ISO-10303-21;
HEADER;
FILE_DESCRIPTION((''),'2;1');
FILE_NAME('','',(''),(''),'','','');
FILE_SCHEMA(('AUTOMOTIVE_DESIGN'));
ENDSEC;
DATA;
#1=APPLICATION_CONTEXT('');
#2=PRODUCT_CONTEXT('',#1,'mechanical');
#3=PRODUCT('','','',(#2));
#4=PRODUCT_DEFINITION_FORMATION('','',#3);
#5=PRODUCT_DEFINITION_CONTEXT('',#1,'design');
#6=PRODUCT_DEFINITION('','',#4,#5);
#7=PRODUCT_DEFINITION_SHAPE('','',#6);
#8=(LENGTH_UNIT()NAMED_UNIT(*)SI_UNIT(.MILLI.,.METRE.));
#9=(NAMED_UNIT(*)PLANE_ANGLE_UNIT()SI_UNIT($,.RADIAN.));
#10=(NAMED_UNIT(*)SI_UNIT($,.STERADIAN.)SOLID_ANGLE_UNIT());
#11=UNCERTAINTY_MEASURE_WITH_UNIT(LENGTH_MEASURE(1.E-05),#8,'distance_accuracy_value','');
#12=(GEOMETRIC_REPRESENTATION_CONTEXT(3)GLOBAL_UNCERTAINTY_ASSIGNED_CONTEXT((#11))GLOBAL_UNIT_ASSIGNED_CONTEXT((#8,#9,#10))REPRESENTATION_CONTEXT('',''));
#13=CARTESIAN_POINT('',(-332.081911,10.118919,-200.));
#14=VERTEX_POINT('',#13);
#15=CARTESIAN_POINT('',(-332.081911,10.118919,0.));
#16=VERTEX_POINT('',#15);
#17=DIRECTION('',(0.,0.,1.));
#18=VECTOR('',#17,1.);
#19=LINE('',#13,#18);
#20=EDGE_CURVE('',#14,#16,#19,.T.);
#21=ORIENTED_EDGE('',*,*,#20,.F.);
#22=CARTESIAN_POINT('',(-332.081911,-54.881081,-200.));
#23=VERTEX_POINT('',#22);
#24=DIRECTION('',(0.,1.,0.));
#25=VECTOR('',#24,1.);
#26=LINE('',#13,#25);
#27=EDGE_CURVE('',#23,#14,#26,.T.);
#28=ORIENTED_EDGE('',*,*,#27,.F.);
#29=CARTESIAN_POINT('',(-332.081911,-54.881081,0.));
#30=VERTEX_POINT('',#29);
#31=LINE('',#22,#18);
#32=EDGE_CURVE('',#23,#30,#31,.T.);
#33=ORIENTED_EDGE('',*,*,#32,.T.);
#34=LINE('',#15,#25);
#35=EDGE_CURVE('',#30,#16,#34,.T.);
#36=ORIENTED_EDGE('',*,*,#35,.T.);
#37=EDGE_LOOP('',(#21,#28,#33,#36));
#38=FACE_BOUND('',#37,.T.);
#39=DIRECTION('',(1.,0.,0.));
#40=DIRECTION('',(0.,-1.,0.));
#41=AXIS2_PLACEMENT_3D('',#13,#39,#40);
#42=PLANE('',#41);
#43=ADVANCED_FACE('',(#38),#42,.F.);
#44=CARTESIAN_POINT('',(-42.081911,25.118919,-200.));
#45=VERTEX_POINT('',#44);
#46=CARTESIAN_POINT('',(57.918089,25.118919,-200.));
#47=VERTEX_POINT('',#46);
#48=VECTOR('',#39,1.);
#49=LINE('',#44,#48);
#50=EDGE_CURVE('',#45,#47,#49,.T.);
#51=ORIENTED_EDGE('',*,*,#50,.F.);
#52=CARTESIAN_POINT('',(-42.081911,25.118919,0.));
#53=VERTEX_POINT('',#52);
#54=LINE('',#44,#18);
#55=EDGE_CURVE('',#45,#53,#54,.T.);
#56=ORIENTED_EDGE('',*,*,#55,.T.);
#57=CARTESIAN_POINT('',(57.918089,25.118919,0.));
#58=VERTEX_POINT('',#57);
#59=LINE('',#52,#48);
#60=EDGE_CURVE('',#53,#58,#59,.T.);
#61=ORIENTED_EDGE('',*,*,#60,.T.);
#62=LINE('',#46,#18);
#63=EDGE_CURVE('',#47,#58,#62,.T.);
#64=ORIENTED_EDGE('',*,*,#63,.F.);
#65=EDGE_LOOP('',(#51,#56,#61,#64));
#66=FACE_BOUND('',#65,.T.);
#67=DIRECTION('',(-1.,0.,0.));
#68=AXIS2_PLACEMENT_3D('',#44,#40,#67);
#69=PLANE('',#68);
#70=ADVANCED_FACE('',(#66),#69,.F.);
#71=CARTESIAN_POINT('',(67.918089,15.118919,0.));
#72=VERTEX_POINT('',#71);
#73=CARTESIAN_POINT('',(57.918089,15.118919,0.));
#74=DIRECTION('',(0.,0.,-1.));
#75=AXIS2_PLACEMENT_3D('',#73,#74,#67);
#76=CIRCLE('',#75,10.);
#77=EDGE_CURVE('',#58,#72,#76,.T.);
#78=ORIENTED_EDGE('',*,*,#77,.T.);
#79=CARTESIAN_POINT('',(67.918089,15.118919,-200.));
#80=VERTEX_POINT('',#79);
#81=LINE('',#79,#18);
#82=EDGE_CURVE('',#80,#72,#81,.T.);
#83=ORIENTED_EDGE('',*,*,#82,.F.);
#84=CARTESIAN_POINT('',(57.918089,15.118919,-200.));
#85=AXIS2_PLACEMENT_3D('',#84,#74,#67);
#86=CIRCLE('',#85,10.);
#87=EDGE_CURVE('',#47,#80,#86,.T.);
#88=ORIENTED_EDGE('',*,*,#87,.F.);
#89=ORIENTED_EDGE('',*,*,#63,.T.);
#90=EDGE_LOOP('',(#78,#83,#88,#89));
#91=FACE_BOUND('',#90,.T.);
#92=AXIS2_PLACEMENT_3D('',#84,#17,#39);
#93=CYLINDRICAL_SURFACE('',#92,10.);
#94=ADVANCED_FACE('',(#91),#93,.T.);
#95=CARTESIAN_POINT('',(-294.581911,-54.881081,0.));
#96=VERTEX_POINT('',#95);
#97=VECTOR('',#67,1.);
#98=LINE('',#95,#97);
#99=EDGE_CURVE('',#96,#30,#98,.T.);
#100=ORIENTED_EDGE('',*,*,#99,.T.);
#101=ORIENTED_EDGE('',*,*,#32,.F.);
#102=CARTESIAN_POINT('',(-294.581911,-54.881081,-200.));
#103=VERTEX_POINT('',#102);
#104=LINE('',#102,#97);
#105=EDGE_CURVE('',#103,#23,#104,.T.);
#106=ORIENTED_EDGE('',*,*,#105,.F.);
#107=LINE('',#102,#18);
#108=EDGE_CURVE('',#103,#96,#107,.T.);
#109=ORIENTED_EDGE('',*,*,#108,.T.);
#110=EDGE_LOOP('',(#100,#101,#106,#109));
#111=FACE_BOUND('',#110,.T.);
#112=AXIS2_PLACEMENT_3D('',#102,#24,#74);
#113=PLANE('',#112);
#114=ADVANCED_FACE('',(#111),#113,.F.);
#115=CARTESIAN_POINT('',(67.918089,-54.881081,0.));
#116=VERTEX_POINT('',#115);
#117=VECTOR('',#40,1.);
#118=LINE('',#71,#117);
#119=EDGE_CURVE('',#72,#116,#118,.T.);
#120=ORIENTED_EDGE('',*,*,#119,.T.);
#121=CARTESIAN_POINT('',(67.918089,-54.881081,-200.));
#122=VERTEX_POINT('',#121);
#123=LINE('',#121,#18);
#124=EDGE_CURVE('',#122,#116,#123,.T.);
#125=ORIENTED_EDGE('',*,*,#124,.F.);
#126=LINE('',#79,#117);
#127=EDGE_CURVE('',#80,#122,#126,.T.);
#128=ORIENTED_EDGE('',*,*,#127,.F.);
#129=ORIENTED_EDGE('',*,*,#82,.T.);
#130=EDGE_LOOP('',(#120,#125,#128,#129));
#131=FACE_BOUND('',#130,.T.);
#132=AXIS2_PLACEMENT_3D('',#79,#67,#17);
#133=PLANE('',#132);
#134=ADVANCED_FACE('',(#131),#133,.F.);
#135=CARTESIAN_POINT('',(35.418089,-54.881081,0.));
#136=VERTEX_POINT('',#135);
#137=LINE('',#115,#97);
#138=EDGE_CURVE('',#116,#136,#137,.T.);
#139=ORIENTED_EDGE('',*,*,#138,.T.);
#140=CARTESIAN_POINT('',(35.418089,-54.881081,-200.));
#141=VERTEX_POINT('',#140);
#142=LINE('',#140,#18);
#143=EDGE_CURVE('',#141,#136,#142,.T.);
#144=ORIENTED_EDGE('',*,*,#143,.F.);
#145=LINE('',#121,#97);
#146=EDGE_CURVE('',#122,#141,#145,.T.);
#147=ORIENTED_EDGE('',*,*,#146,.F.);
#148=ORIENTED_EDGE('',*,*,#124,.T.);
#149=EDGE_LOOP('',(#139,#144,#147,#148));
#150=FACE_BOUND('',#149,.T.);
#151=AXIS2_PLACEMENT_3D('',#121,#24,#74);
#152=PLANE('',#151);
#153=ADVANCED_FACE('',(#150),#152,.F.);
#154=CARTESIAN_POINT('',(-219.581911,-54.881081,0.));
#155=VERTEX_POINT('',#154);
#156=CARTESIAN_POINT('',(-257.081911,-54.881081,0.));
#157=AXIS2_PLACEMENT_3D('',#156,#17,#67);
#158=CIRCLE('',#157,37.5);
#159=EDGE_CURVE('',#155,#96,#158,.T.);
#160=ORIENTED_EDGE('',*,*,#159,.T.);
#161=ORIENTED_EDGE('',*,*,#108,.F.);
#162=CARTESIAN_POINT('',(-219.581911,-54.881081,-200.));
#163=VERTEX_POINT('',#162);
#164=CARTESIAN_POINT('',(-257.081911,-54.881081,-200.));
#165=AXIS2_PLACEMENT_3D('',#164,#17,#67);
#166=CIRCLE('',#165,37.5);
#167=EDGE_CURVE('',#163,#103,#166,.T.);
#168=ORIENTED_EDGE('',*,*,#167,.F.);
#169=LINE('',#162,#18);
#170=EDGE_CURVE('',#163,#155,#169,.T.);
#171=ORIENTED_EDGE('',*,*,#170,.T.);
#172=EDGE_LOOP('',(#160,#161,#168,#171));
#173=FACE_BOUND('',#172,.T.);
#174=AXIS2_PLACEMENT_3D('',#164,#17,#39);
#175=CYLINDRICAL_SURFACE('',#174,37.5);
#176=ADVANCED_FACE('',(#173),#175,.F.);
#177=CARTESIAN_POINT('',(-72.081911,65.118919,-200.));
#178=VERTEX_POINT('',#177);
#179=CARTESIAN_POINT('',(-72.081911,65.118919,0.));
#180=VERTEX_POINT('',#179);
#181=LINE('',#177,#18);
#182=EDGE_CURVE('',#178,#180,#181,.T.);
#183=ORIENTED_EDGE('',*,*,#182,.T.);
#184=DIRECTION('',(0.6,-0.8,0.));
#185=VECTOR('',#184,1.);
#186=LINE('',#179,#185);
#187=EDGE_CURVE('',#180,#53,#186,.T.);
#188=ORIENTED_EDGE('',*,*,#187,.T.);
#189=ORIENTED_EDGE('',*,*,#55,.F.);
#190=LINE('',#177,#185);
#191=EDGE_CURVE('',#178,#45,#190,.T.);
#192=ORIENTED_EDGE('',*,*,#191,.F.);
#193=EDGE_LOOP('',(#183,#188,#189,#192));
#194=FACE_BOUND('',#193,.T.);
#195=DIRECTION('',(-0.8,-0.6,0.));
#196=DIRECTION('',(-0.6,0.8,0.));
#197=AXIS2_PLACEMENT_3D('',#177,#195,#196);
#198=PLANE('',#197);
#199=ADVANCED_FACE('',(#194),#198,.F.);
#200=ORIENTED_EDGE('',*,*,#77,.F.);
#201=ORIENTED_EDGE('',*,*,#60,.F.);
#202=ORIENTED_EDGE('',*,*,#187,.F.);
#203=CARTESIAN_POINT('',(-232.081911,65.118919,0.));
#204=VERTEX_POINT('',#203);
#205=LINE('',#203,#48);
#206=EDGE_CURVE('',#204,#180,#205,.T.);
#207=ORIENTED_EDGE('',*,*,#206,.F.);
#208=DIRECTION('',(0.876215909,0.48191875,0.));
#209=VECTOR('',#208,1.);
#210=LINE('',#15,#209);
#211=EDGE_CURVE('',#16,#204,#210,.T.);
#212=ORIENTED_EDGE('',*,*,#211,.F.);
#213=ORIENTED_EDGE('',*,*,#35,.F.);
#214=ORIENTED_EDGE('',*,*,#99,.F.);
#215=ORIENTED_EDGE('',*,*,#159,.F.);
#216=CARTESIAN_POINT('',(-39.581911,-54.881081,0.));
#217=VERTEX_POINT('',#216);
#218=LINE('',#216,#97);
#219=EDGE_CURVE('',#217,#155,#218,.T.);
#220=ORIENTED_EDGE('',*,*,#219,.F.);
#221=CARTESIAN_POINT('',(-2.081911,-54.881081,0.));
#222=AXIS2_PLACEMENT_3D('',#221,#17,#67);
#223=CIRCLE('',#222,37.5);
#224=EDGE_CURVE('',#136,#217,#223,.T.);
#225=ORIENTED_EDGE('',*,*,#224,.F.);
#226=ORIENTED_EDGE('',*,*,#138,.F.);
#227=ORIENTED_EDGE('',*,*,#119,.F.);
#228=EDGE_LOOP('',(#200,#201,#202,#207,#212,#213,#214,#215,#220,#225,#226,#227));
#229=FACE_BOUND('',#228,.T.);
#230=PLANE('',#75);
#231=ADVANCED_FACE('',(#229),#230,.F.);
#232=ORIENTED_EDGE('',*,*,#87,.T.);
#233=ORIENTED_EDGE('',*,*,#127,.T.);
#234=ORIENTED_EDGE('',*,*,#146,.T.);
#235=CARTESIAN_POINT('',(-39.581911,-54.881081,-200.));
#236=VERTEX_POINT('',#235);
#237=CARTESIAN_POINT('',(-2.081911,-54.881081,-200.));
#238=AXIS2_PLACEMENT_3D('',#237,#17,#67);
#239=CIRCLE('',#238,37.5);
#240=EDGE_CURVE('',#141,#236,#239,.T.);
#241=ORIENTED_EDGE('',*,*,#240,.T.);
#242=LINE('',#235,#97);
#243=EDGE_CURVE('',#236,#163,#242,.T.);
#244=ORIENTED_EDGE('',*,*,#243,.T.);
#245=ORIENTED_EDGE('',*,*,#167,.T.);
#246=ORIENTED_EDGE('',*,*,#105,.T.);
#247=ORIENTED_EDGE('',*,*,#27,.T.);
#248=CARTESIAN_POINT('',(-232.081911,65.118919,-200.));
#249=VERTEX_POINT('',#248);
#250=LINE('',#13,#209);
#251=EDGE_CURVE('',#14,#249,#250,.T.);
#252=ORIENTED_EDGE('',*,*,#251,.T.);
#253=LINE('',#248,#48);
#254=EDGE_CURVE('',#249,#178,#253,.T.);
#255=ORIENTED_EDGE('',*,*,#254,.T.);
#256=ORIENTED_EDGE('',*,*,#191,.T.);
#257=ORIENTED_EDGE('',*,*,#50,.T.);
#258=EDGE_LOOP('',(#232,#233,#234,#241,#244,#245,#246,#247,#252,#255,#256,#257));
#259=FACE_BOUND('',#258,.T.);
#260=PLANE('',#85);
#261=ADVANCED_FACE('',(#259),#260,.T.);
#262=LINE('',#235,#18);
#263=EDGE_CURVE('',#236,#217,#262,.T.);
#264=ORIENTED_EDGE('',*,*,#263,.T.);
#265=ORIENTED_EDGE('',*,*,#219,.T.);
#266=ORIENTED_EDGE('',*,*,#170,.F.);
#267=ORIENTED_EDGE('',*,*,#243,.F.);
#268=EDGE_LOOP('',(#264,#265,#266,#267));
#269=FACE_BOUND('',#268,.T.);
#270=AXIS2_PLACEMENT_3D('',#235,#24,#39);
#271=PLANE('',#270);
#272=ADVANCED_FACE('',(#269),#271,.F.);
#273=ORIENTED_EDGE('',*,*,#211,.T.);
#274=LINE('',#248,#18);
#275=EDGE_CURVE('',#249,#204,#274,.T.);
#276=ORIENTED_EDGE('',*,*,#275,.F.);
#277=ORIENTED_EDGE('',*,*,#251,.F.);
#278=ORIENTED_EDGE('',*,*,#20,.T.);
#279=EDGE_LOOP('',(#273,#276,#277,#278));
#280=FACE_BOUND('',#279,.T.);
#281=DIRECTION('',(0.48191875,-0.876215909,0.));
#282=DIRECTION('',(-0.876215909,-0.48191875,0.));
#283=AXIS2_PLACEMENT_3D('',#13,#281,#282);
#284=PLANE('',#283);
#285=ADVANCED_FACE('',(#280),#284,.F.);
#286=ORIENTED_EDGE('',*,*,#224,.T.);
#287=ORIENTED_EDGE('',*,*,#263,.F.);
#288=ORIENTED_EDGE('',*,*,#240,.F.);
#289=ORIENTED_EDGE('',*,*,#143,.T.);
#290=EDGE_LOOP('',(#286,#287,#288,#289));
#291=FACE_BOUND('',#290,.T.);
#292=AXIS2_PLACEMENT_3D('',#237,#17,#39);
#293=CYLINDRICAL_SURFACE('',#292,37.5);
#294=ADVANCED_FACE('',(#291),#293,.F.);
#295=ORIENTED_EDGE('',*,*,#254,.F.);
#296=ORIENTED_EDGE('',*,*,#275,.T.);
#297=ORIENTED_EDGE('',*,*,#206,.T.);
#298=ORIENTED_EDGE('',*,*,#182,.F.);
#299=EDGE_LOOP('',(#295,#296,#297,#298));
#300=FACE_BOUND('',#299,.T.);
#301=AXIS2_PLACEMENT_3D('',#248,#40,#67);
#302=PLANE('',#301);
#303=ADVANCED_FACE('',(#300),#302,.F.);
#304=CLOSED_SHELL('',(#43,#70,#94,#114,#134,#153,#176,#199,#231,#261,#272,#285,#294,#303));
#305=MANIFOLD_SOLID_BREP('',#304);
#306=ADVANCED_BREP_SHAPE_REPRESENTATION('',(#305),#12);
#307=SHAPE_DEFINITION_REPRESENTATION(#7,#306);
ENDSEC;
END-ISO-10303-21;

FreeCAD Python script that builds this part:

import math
import FreeCAD as App
import Part
import Sketcher

V = App.Vector

doc = App.newDocument("Part")
params = doc.addObject("Spreadsheet::Sheet", "Params")
for row, (alias, value) in enumerate([
    ("sketch1_radius", "10 mm"),
    ("sketch1_radius2", "37.5 mm"),
    ("sketch1_width", "160 mm"),
    ("sketch1_width2", "100 mm"),
    ("sketch1_width3", "180 mm"),
    ("pad1_length", "200 mm"),
], start=1):
    params.set(f"A{row}", alias)
    params.set(f"B{row}", "=" + value)
    params.setAlias(f"B{row}", alias)

body = doc.addObject("PartDesign::Body", "Body")

# Sketch on XY plane
sketch1 = doc.addObject("Sketcher::SketchObject", "Sketch")
body.addObject(sketch1)
sketch1.AttachmentSupport = (doc.XY_Plane, [""])
sketch1.MapMode = "FlatFace"
sketch1.addGeometry(Part.LineSegment(V(332, 10, 0), V(232, 65, 0)), False)
sketch1.addGeometry(Part.LineSegment(V(232, 65, 0), V(72, 65, 0)), False)
sketch1.addGeometry(Part.LineSegment(V(72, 65, 0), V(42, 25, 0)), False)
sketch1.addGeometry(Part.LineSegment(V(42, 25, 0), V(-58, 25, 0)), False)
sketch1.addGeometry(Part.ArcOfCircle(Part.Circle(V(-58, 15, 0), V(0, 0, 1), 10), math.radians(90), math.radians(180)), False)
sketch1.addGeometry(Part.LineSegment(V(-68, 15, 0), V(-68, -55, 0)), False)
sketch1.addGeometry(Part.LineSegment(V(-68, -55, 0), V(-35, -55, 0)), False)
sketch1.addGeometry(Part.ArcOfCircle(Part.Circle(V(2, -55, 0), V(0, 0, 1), 38), math.radians(0), math.radians(180)), False)
sketch1.addGeometry(Part.LineSegment(V(40, -55, 0), V(220, -55, 0)), False)
sketch1.addGeometry(Part.ArcOfCircle(Part.Circle(V(257, -55, 0), V(0, 0, 1), 38), math.radians(0), math.radians(180)), False)
sketch1.addGeometry(Part.LineSegment(V(295, -55, 0), V(332, -55, 0)), False)
sketch1.addGeometry(Part.LineSegment(V(332, -55, 0), V(332, 10, 0)), False)
sketch1.addConstraint(Sketcher.Constraint("Coincident", 0, 2, 1, 1))
sketch1.addConstraint(Sketcher.Constraint("Coincident", 1, 2, 2, 1))
sketch1.addConstraint(Sketcher.Constraint("Coincident", 2, 2, 3, 1))
sketch1.addConstraint(Sketcher.Constraint("Tangent", 3, 2, 4, 1))
sketch1.addConstraint(Sketcher.Constraint("Tangent", 4, 2, 5, 1))
sketch1.addConstraint(Sketcher.Constraint("Coincident", 5, 2, 6, 1))
sketch1.addConstraint(Sketcher.Constraint("Coincident", 6, 2, 7, 2))
sketch1.addConstraint(Sketcher.Constraint("Coincident", 7, 1, 8, 1))
sketch1.addConstraint(Sketcher.Constraint("Coincident", 8, 2, 9, 2))
sketch1.addConstraint(Sketcher.Constraint("Coincident", 9, 1, 10, 1))
sketch1.addConstraint(Sketcher.Constraint("Coincident", 10, 2, 11, 1))
sketch1.addConstraint(Sketcher.Constraint("Coincident", 11, 2, 0, 1))
sketch1.addConstraint(Sketcher.Constraint("Horizontal", 1))
sketch1.addConstraint(Sketcher.Constraint("Horizontal", 3))
sketch1.addConstraint(Sketcher.Constraint("Vertical", 5))
sketch1.addConstraint(Sketcher.Constraint("Horizontal", 6))
sketch1.addConstraint(Sketcher.Constraint("Horizontal", 8))
sketch1.addConstraint(Sketcher.Constraint("Horizontal", 10))
sketch1.addConstraint(Sketcher.Constraint("Vertical", 11))
sketch1.addConstraint(Sketcher.Constraint("Equal", 7, 9))
sketch1.addConstraint(Sketcher.Constraint("Horizontal", 7, 3, 9, 3))
sketch1.addConstraint(Sketcher.Constraint("Horizontal", 9, 3, 5, 2))
sketch1.addConstraint(Sketcher.Constraint("Horizontal", 6, 2, 7, 1))
sketch1.addConstraint(Sketcher.Constraint("Horizontal", 8, 2, 9, 1))
sketch1.addConstraint(Sketcher.Constraint("Radius", 4, 10.0))
sketch1.addConstraint(Sketcher.Constraint("Radius", 7, 37.5))
sketch1.addConstraint(Sketcher.Constraint("DistanceX", 1, 2, 1, 1, 160.0))
sketch1.addConstraint(Sketcher.Constraint("DistanceX", 3, 2, 3, 1, 100.0))
sketch1.addConstraint(Sketcher.Constraint("DistanceX", 8, 1, 8, 2, 180.0))
sketch1.addConstraint(Sketcher.Constraint("DistanceY", 5, 2, 5, 1, 70.0))
sketch1.addConstraint(Sketcher.Constraint("DistanceY", 11, 1, 11, 2, 65.0))
sketch1.addConstraint(Sketcher.Constraint("Distance", 2, 50.0))
sketch1.addConstraint(Sketcher.Constraint("DistanceX", 6, 1, 6, 2, 32.5))
sketch1.addConstraint(Sketcher.Constraint("DistanceX", 10, 1, 10, 2, 37.5))
sketch1.addConstraint(Sketcher.Constraint("DistanceX", 0, 2, 9, 3, 25.0))
sketch1.addConstraint(Sketcher.Constraint("DistanceX", 4, 3, -1, 1, 57.918089))
sketch1.addConstraint(Sketcher.Constraint("DistanceY", -1, 1, 4, 3, 15.118919))
sketch1.setExpression("Constraints[24]", "Params.sketch1_radius")
sketch1.setExpression("Constraints[25]", "Params.sketch1_radius2")
sketch1.setExpression("Constraints[26]", "Params.sketch1_width")
sketch1.setExpression("Constraints[27]", "Params.sketch1_width2")
sketch1.setExpression("Constraints[28]", "Params.sketch1_width3")
pad1 = doc.addObject("PartDesign::Pad", "Pad")
body.addObject(pad1)
pad1.Profile = sketch1
pad1.setExpression("Length", "Params.pad1_length")
body2 = doc.addObject("PartDesign::Body", "Body001")
doc.recompute()

body.Placement = App.Placement(V(0, 0, 0), App.Rotation(V(0, 1, 0), 180))
boolean = doc.addObject("PartDesign::Boolean", "Boolean")
body2.addObject(boolean)
boolean.Type = "Fuse"
boolean.addObjects([body])

doc.recompute()
